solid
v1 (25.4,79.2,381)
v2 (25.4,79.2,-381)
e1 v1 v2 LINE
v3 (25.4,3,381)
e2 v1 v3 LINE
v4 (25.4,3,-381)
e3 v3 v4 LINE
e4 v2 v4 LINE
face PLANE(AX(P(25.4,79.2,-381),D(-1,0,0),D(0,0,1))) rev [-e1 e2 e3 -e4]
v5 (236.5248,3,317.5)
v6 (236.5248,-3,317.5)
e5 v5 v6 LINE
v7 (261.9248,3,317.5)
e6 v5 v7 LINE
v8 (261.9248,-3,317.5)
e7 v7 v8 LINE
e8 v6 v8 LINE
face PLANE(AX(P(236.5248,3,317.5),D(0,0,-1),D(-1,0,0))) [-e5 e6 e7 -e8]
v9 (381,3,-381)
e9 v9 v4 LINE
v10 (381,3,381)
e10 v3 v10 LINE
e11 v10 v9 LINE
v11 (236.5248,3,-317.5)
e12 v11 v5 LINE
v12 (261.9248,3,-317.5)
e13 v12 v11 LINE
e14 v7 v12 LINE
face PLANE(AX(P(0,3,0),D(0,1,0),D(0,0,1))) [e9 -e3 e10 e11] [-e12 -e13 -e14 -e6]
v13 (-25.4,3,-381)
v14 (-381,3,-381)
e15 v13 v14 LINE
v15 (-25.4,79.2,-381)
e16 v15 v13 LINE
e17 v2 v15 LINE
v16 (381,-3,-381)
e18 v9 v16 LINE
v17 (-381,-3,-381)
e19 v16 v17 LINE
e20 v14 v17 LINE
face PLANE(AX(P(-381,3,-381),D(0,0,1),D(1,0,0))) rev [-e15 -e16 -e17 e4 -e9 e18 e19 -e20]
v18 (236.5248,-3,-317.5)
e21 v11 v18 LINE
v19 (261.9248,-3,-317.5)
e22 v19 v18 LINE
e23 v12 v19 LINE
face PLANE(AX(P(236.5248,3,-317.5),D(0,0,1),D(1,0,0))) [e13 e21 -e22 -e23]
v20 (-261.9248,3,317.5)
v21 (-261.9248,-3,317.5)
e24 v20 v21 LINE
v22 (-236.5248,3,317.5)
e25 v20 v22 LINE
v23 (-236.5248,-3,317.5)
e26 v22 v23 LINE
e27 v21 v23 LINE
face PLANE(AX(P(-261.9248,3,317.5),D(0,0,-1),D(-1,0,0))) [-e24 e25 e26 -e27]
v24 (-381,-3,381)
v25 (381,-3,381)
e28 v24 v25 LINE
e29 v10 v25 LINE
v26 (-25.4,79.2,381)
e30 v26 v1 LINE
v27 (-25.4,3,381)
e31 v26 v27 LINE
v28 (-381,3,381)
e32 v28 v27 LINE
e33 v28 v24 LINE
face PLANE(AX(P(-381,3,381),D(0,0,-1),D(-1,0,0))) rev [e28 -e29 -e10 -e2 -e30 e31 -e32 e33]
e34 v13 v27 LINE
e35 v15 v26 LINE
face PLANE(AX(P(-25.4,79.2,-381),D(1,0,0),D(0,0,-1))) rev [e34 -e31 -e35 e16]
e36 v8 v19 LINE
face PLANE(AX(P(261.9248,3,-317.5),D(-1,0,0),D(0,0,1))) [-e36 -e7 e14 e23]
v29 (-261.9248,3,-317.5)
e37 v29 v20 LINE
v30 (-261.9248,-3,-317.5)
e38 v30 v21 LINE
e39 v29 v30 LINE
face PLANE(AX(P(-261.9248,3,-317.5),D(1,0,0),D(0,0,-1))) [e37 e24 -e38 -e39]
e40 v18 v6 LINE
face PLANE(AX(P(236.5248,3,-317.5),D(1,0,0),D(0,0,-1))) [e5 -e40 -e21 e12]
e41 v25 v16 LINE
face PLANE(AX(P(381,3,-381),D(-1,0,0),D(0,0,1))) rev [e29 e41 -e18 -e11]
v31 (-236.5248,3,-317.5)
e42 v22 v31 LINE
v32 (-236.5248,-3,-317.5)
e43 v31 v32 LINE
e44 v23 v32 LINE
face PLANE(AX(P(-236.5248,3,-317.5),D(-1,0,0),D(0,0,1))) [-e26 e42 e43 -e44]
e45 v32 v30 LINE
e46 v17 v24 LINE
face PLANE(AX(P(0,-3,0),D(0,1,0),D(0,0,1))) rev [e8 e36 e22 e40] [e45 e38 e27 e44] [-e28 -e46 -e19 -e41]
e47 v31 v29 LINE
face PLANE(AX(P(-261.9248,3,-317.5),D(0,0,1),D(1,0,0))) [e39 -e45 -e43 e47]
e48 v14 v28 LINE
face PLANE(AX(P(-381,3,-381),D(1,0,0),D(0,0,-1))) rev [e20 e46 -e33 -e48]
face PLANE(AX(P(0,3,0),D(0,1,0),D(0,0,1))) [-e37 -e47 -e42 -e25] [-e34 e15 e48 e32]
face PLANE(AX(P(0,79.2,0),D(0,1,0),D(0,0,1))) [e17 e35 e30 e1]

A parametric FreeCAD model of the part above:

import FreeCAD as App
import Part
import Sketcher

V = App.Vector
Q = App.Units.Quantity


def add_polygon(sketch, points):
    """Adds a closed chain of lines whose ends are joined by coincident constraints."""
    first, n = sketch.GeometryCount, len(points)
    for a, b in zip(points, points[1:] + points[:1]):
        sketch.addGeometry(Part.LineSegment(App.Vector(*a, 0), App.Vector(*b, 0)), False)
    for i in range(n):
        sketch.addConstraint(Sketcher.Constraint("Coincident", first + i, 2, first + (i + 1) % n, 1))

doc = App.newDocument("Part")
body = doc.addObject("PartDesign::Body", "Body")

# Sketch on XZ plane
sketch1 = doc.addObject("Sketcher::SketchObject", "Sketch")
body.addObject(sketch1)
sketch1.AttachmentSupport = (doc.XZ_Plane, [""])
sketch1.MapMode = "FlatFace"
add_polygon(sketch1, [(-381, -381), (-381, 381), (381, 381), (381, -381)])  # lines 0-3
add_polygon(sketch1, [(-237, 318), (-262, 318), (-262, -318), (-237, -318)])  # lines 4-7
add_polygon(sketch1, [(262, 318), (237, 318), (237, -318), (262, -318)])  # lines 8-11
sketch1.addConstraint([
    Sketcher.Constraint("Vertical", 0),
    Sketcher.Constraint("Horizontal", 1),
    Sketcher.Constraint("Vertical", 2),
    Sketcher.Constraint("Horizontal", 3),
    Sketcher.Constraint("Horizontal", 4),
    Sketcher.Constraint("Vertical", 5),
    Sketcher.Constraint("Horizontal", 6),
    Sketcher.Constraint("Vertical", 7),
    Sketcher.Constraint("Horizontal", 8),
    Sketcher.Constraint("Vertical", 9),
    Sketcher.Constraint("Horizontal", 10),
    Sketcher.Constraint("Vertical", 11),
    Sketcher.Constraint("Symmetric", 0, 2, 2, 2, -1, 1),
    Sketcher.Constraint("Symmetric", 6, 2, 8, 2, -1, 1),
    Sketcher.Constraint("Symmetric", 4, 2, 10, 2, -1, 1),
    Sketcher.Constraint("Horizontal", 7, 2, 8, 2),
    Sketcher.Constraint("Equal", 3, 0),
    Sketcher.Constraint("DistanceX", 1, 1, 1, 2, Q("30 in")),
    Sketcher.Constraint("DistanceX", 4, 2, 4, 1, Q("1 in")),
    Sketcher.Constraint("DistanceY", 5, 2, 5, 1, Q("25 in")),
    Sketcher.Constraint("DistanceX", 4, 2, -1, 1, Q("10.312 in")),
])
pad1 = doc.addObject("PartDesign::Pad", "Pad")
body.addObject(pad1)
pad1.Profile = sketch1
pad1.Length = 6
pad1.Midplane = True

# Sketch on XZ plane
sketch2 = doc.addObject("Sketcher::SketchObject", "Sketch001")
body.addObject(sketch2)
sketch2.AttachmentSupport = (doc.XZ_Plane, [""])
sketch2.MapMode = "FlatFace"
sketch2.AttachmentOffset = App.Placement(V(0, 0, -3), App.Rotation())
add_polygon(sketch2, [(-25, -381), (-25, 381), (25, 381), (25, -381)])  # lines 0-3
sketch2.addConstraint([
    Sketcher.Constraint("Vertical", 0),
    Sketcher.Constraint("Horizontal", 1),
    Sketcher.Constraint("Vertical", 2),
    Sketcher.Constraint("Horizontal", 3),
    Sketcher.Constraint("Symmetric", 0, 2, 2, 2, -1, 1),
    Sketcher.Constraint("DistanceX", 1, 1, 1, 2, Q("2 in")),
    Sketcher.Constraint("DistanceY", 0, 1, 0, 2, Q("30 in")),
])
pad2 = doc.addObject("PartDesign::Pad", "Pad001")
body.addObject(pad2)
pad2.Profile = sketch2
pad2.Length = Q("3 in")
pad2.Reversed = True

doc.recompute()
